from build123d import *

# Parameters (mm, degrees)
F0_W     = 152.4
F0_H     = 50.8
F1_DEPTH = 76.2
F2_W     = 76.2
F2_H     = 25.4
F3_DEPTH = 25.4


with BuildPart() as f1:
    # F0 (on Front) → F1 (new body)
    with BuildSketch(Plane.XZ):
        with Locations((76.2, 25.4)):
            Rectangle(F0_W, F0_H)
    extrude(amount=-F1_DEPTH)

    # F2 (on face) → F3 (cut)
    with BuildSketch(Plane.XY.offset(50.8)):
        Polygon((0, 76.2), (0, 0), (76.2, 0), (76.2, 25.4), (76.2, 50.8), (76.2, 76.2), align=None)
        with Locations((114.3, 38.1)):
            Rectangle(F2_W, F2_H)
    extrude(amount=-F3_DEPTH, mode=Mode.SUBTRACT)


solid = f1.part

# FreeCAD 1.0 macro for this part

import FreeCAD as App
import Part
import Sketcher
Q = App.Units.Quantity

doc = App.newDocument("Part")
body = doc.addObject("PartDesign::Body", "Body")

sketch1 = doc.addObject("Sketcher::SketchObject", "Sketch")
body.addObject(sketch1)
sketch1.AttachmentSupport = (doc.XZ_Plane, [""])
sketch1.MapMode = "FlatFace"
sketch1.addGeometry([
    Part.LineSegment(App.Vector(0, 51, 0), App.Vector(0, 0, 0)),
    Part.LineSegment(App.Vector(0, 0, 0), App.Vector(152, 0, 0)),
    Part.LineSegment(App.Vector(152, 0, 0), App.Vector(152, 51, 0)),
    Part.LineSegment(App.Vector(152, 51, 0), App.Vector(0, 51, 0)),
], False)
sketch1.addConstraint([
    Sketcher.Constraint("Coincident", 0, 2, 1, 1),
    Sketcher.Constraint("Coincident", 1, 2, 2, 1),
    Sketcher.Constraint("Coincident", 2, 2, 3, 1),
    Sketcher.Constraint("Coincident", 3, 2, 0, 1),
    Sketcher.Constraint("Vertical", 0),
    Sketcher.Constraint("Horizontal", 1),
    Sketcher.Constraint("Vertical", 2),
    Sketcher.Constraint("Horizontal", 3),
    Sketcher.Constraint("Coincident", 0, 2, -1, 1),
    Sketcher.Constraint("DistanceX", 1, 1, 1, 2, Q("6 in")),
    Sketcher.Constraint("DistanceY", 0, 2, 0, 1, Q("2 in")),
])
pad1 = doc.addObject("PartDesign::Pad", "Pad")
body.addObject(pad1)
pad1.Profile = sketch1
pad1.Length = Q("3 in")
pad1.Reversed = True

sketch2 = doc.addObject("Sketcher::SketchObject", "Sketch001")
body.addObject(sketch2)
sketch2.AttachmentSupport = (doc.XY_Plane, [""])
sketch2.MapMode = "FlatFace"
sketch2.AttachmentOffset = App.Placement(App.Vector(0, 0, 2 * 25.4), App.Rotation())
sketch2.addGeometry([
    Part.LineSegment(App.Vector(0, 76, 0), App.Vector(0, 0, 0)),
    Part.LineSegment(App.Vector(0, 0, 0), App.Vector(76, 0, 0)),
    Part.LineSegment(App.Vector(76, 0, 0), App.Vector(76, 25, 0)),
    Part.LineSegment(App.Vector(76, 25, 0), App.Vector(152, 25, 0)),
    Part.LineSegment(App.Vector(152, 25, 0), App.Vector(152, 51, 0)),
    Part.LineSegment(App.Vector(152, 51, 0), App.Vector(76, 51, 0)),
    Part.LineSegment(App.Vector(76, 51, 0), App.Vector(76, 76, 0)),
    Part.LineSegment(App.Vector(76, 76, 0), App.Vector(0, 76, 0)),
], False)
sketch2.addConstraint([
    Sketcher.Constraint("Coincident", 0, 2, 1, 1),
    Sketcher.Constraint("Coincident", 1, 2, 2, 1),
    Sketcher.Constraint("Coincident", 2, 2, 3, 1),
    Sketcher.Constraint("Coincident", 3, 2, 4, 1),
    Sketcher.Constraint("Coincident", 4, 2, 5, 1),
    Sketcher.Constraint("Coincident", 5, 2, 6, 1),
    Sketcher.Constraint("Coincident", 6, 2, 7, 1),
    Sketcher.Constraint("Coincident", 7, 2, 0, 1),
    Sketcher.Constraint("Vertical", 0),
    Sketcher.Constraint("Horizontal", 1),
    Sketcher.Constraint("Vertical", 2),
    Sketcher.Constraint("Horizontal", 3),
    Sketcher.Constraint("Vertical", 4),
    Sketcher.Constraint("Horizontal", 5),
    Sketcher.Constraint("Vertical", 6),
    Sketcher.Constraint("Horizontal", 7),
    Sketcher.Constraint("Coincident", 0, 2, -1, 1),
    Sketcher.Constraint("Vertical", 2, 2, 5, 2),
    Sketcher.Constraint("Equal", 1, 3),
    Sketcher.Constraint("Equal", 7, 0),
    Sketcher.Constraint("Equal", 2, 4),
    Sketcher.Constraint("Equal", 4, 6),
    Sketcher.Constraint("DistanceX", 1, 1, 1, 2, Q("3 in")),
])
pocket1 = doc.addObject("PartDesign::Pocket", "Pocket")
body.addObject(pocket1)
pocket1.Profile = sketch2
pocket1.Length = Q("1 in")

doc.recompute()
